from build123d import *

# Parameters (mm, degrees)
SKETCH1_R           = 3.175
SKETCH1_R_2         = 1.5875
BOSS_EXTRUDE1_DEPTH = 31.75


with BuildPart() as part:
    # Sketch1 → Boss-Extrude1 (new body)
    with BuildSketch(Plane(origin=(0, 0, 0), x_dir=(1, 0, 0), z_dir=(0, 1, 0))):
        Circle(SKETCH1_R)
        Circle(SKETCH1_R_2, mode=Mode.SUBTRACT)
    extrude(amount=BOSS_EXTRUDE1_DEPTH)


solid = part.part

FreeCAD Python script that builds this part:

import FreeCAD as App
import Part
import Sketcher

V = App.Vector
Q = App.Units.Quantity

doc = App.newDocument("Part")
body = doc.addObject("PartDesign::Body", "Body")

sketch1 = body.newObject("Sketcher::SketchObject", "Sketch")
sketch1.AttachmentSupport = (doc.getObject("XZ_Plane"), [""])
sketch1.MapMode = "FlatFace"
sketch1.addGeometry(Part.Circle(V(0, 0, 0), V(0, 0, 1), 3.2), False)
sketch1.addGeometry(Part.Circle(V(0, 0, 0), V(0, 0, 1), 1.6), False)
sketch1.addConstraint(Sketcher.Constraint("Coincident", 0, 3, -1, 1))
sketch1.addConstraint(Sketcher.Constraint("Coincident", 1, 3, -1, 1))
sketch1.addConstraint(Sketcher.Constraint("Diameter", 0, Q("0.25 in")))
sketch1.addConstraint(Sketcher.Constraint("Diameter", 1, Q("0.125 in")))
pad1 = body.newObject("PartDesign::Pad", "Pad")
pad1.Profile = sketch1
pad1.Length = Q("1.25 in")
pad1.Reversed = True

doc.recompute()
